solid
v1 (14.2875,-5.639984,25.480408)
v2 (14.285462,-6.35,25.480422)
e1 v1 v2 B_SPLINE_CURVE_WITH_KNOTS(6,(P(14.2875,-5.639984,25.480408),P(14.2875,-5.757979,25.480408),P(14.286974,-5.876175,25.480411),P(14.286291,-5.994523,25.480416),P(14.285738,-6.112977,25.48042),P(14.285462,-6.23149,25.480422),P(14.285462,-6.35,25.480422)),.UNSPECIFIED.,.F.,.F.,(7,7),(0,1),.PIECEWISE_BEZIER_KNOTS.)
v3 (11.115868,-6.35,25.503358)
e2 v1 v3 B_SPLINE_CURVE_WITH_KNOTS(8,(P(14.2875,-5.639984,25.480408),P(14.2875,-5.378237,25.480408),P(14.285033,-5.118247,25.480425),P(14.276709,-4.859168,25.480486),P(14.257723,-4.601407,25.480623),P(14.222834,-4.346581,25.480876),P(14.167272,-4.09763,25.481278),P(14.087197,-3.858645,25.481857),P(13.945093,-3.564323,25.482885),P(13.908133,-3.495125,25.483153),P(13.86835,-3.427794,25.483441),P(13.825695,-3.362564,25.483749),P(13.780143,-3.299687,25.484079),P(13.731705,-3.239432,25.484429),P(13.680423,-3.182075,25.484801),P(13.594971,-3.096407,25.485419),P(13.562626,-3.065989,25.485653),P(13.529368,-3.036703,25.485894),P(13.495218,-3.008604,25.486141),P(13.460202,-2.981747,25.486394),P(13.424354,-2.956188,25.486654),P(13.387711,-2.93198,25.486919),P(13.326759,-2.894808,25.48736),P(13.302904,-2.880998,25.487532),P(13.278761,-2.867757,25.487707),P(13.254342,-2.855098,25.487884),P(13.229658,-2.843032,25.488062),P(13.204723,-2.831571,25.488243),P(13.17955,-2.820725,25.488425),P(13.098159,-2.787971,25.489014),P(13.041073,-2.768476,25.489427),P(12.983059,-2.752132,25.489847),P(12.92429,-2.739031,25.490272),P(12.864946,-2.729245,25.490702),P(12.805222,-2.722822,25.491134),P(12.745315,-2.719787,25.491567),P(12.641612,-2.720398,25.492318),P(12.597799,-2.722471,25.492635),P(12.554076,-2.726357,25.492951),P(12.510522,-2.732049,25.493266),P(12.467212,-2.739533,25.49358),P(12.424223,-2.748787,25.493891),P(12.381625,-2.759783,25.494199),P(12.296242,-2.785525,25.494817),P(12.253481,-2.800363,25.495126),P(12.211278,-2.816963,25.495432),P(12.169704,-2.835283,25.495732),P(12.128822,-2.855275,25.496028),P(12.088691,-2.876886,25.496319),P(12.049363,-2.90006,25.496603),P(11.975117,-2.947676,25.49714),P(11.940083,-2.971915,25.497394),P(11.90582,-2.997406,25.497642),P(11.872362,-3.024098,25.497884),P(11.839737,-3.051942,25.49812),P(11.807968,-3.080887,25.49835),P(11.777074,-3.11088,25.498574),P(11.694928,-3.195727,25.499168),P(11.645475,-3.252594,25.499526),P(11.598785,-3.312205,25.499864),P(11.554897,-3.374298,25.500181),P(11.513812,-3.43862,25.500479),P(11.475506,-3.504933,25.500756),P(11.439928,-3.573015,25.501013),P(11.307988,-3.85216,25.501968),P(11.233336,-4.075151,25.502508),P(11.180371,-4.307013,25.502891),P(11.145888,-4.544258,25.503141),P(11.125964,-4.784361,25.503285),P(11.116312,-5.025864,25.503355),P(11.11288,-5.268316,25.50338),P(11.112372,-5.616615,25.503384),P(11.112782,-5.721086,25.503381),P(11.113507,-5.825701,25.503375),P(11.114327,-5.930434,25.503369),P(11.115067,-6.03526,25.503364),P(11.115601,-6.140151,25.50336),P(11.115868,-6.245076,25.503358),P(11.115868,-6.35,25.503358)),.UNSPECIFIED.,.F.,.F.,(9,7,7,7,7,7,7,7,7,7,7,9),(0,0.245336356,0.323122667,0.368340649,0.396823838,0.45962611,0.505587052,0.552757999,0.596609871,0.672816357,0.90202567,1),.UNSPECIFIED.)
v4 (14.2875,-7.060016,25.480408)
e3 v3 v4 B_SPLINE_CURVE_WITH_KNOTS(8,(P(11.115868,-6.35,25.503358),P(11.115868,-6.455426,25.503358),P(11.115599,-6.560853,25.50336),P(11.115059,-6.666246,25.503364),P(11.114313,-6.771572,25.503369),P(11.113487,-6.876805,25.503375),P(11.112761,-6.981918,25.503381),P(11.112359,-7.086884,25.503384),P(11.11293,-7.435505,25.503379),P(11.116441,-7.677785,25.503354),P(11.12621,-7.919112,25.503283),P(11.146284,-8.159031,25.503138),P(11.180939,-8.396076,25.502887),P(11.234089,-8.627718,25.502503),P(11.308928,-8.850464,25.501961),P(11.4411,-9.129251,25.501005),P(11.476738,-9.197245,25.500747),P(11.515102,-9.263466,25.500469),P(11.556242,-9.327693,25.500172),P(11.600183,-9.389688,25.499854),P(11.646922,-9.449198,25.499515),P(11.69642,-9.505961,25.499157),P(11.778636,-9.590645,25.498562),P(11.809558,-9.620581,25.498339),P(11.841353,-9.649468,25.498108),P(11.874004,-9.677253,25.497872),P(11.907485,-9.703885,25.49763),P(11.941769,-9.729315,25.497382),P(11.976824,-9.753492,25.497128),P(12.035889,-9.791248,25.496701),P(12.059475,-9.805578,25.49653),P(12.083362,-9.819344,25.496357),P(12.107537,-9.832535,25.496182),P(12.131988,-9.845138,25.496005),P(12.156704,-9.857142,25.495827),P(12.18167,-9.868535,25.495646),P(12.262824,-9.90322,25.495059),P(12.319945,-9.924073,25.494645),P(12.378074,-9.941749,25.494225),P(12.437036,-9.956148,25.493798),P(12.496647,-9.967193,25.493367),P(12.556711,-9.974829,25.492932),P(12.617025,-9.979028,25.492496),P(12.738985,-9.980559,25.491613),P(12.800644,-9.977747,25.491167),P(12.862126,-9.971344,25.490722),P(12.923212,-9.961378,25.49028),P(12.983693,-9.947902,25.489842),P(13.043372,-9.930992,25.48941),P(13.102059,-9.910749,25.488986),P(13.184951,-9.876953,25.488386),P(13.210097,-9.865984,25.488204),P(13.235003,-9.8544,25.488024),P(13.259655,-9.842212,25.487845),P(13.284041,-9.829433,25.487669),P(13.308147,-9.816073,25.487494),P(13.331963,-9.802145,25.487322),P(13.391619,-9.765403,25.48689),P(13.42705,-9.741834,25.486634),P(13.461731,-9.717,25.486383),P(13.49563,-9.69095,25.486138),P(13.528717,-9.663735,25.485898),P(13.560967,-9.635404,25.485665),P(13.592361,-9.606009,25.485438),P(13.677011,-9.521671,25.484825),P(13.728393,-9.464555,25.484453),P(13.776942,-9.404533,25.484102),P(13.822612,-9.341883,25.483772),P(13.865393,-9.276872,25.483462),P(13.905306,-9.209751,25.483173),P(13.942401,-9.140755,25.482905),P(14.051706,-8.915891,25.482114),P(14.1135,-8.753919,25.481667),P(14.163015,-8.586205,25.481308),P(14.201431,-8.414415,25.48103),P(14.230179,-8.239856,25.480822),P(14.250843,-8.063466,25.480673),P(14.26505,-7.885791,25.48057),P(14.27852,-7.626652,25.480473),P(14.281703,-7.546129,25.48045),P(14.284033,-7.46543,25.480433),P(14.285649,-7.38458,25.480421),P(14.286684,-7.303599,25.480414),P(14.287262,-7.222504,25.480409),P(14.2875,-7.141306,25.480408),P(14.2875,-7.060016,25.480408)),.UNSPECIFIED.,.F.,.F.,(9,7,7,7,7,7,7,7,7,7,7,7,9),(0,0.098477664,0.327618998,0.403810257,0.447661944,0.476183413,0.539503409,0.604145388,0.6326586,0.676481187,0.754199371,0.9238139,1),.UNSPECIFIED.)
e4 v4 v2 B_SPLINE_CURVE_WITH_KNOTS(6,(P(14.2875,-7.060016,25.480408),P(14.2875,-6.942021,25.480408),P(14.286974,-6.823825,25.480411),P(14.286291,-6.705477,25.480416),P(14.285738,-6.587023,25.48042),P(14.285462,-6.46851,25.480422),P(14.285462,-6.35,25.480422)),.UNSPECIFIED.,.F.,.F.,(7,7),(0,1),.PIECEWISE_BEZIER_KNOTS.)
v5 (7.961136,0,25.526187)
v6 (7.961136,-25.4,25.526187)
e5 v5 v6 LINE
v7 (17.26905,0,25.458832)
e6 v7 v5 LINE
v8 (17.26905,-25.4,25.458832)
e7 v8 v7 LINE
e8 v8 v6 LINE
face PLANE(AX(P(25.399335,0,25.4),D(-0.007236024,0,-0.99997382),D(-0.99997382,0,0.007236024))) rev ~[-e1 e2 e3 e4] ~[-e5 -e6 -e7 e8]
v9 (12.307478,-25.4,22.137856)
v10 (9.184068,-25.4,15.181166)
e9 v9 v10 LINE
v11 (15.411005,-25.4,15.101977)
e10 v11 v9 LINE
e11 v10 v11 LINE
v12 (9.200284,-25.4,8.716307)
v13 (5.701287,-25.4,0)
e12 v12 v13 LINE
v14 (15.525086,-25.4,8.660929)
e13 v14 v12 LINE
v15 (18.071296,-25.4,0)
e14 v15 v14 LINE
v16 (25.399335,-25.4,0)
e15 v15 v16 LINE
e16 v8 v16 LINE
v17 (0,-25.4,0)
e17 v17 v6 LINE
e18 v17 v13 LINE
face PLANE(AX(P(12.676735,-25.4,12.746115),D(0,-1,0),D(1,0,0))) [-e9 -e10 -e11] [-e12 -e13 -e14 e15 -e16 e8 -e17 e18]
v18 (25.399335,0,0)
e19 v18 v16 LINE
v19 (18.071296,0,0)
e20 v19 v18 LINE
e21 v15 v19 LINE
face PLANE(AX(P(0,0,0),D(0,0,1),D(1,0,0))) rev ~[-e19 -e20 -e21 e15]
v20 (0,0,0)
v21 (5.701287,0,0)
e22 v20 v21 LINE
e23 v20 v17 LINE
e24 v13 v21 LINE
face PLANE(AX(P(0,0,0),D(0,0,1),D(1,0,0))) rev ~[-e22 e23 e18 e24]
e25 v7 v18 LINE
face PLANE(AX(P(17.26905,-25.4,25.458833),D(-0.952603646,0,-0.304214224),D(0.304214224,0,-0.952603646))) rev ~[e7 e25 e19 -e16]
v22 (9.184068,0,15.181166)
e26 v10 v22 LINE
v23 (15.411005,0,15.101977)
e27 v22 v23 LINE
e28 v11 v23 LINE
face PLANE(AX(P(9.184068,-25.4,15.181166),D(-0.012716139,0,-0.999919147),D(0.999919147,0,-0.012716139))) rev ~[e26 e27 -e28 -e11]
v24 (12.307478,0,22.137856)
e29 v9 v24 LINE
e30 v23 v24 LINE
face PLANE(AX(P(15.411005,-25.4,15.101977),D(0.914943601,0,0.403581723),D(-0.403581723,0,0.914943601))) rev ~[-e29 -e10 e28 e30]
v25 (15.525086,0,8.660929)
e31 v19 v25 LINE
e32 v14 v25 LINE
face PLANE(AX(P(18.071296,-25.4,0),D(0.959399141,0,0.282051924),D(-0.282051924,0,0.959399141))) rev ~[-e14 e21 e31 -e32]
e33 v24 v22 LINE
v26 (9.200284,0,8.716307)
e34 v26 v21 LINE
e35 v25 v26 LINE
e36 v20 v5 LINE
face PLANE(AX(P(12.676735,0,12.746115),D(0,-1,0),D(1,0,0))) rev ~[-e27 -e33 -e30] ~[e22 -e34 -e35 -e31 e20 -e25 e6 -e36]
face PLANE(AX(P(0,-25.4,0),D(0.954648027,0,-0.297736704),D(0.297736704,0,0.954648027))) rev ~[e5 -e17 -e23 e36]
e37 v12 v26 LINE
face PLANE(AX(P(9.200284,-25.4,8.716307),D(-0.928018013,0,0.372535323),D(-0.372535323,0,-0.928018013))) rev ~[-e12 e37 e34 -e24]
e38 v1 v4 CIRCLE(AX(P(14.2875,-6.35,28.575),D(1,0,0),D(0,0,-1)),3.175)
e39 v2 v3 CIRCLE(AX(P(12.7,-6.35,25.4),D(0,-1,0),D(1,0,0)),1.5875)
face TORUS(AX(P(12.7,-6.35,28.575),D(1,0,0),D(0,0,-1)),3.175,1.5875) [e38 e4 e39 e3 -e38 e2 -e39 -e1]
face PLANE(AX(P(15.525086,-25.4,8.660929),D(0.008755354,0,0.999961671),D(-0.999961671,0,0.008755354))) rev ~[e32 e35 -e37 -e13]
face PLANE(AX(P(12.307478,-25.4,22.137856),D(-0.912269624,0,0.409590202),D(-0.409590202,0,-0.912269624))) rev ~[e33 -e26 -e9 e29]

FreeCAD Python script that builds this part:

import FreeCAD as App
import Part
import Sketcher
Q = App.Units.Quantity

doc = App.newDocument("Part")
params = doc.addObject("Spreadsheet::Sheet", "Params")
for row, (alias, value) in enumerate([
    ("sketch1_height", "1 in"),
    ("sketch1_length", "1 in"),
    ("pad1_length", "1 in"),
    ("sketch2_height", "1 in"),
    ("pocket1_length", "1 in"),
    ("sketch3_diameter", "0.125 in"),
    ("revolution_angle", "360 deg"),
], start=1):
    params.set(f"A{row}", alias)
    params.set(f"B{row}", "=" + value)
    params.setAlias(f"B{row}", alias)

body = doc.addObject("PartDesign::Body", "Body")

sketch1 = body.newObject("Sketcher::SketchObject", "Sketch")
sketch1.AttachmentSupport = (doc.getObject("XZ_Plane"), [""])
sketch1.MapMode = "FlatFace"
sketch1.addGeometry([
    Part.LineSegment(App.Vector(25.399335, 25.4, 0), App.Vector(0, 25.583795, 0)),
    Part.LineSegment(App.Vector(0, 25.583795, 0), App.Vector(0, 0, 0)),
    Part.LineSegment(App.Vector(0, 0, 0), App.Vector(25.399335, 0, 0)),
    Part.LineSegment(App.Vector(25.399335, 0, 0), App.Vector(25.399335, 25.4, 0)),
], False)
sketch1.addConstraint([
    Sketcher.Constraint("Coincident", 0, 2, 1, 1),
    Sketcher.Constraint("Coincident", 1, 2, 2, 1),
    Sketcher.Constraint("Coincident", 2, 2, 3, 1),
    Sketcher.Constraint("Coincident", 3, 2, 0, 1),
    Sketcher.Constraint("Vertical", 1),
    Sketcher.Constraint("Horizontal", 2),
    Sketcher.Constraint("Vertical", 3),
    Sketcher.Constraint("Coincident", 1, 2, -1, 1),
    Sketcher.Constraint("DistanceY", 3, 1, 3, 2, Q("1 in")),
    Sketcher.Constraint("Distance", 0, Q("1 in")),
    Sketcher.Constraint("DistanceX", 2, 1, 2, 2, 25.399335),
])
sketch1.setExpression("Constraints[8]", "Params.sketch1_height")
sketch1.setExpression("Constraints[9]", "Params.sketch1_length")
pad1 = body.newObject("PartDesign::Pad", "Pad")
pad1.Profile = sketch1
pad1.setExpression("Length", "Params.pad1_length")

sketch2 = body.newObject("Sketcher::SketchObject", "Sketch001")
sketch2.AttachmentSupport = (doc.getObject("XZ_Plane"), [""])
sketch2.MapMode = "FlatFace"
sketch2.AttachmentOffset = App.Placement(App.Vector(0, 0, 1 * 25.4), App.Rotation())
sketch2.addGeometry([
    Part.LineSegment(App.Vector(0, 0, 0), App.Vector(7.961136, 25.526187, 0)),
    Part.LineSegment(App.Vector(7.961136, 25.526187, 0), App.Vector(0, 25.583795, 0)),
    Part.LineSegment(App.Vector(0, 25.583795, 0), App.Vector(0, 0, 0)),
    Part.LineSegment(App.Vector(9.200284, 8.716307, 0), App.Vector(5.701287, 0, 0)),
    Part.LineSegment(App.Vector(5.701287, 0, 0), App.Vector(18.071296, 0, 0)),
    Part.LineSegment(App.Vector(18.071296, 0, 0), App.Vector(15.525086, 8.660929, 0)),
    Part.LineSegment(App.Vector(15.525086, 8.660929, 0), App.Vector(9.200284, 8.716307, 0)),
    Part.LineSegment(App.Vector(25.399335, 25.4, 0), App.Vector(17.26905, 25.458833, 0)),
    Part.LineSegment(App.Vector(17.26905, 25.458833, 0), App.Vector(25.399335, 0, 0)),
    Part.LineSegment(App.Vector(25.399335, 0, 0), App.Vector(25.399335, 25.4, 0)),
    Part.LineSegment(App.Vector(9.184068, 15.181166, 0), App.Vector(15.411005, 15.101977, 0)),
    Part.LineSegment(App.Vector(15.411005, 15.101977, 0), App.Vector(12.307478, 22.137856, 0)),
    Part.LineSegment(App.Vector(12.307478, 22.137856, 0), App.Vector(9.184068, 15.181166, 0)),
], False)
sketch2.addConstraint([
    Sketcher.Constraint("Coincident", 0, 2, 1, 1),
    Sketcher.Constraint("Coincident", 1, 2, 2, 1),
    Sketcher.Constraint("Coincident", 2, 2, 0, 1),
    Sketcher.Constraint("Coincident", 3, 2, 4, 1),
    Sketcher.Constraint("Coincident", 4, 2, 5, 1),
    Sketcher.Constraint("Coincident", 5, 2, 6, 1),
    Sketcher.Constraint("Coincident", 6, 2, 3, 1),
    Sketcher.Constraint("Coincident", 7, 2, 8, 1),
    Sketcher.Constraint("Coincident", 8, 2, 9, 1),
    Sketcher.Constraint("Coincident", 9, 2, 7, 1),
    Sketcher.Constraint("Coincident", 10, 2, 11, 1),
    Sketcher.Constraint("Coincident", 11, 2, 12, 1),
    Sketcher.Constraint("Coincident", 12, 2, 10, 1),
    Sketcher.Constraint("Vertical", 2),
    Sketcher.Constraint("Horizontal", 4),
    Sketcher.Constraint("Vertical", 9),
    Sketcher.Constraint("Coincident", 2, 2, -1, 1),
    Sketcher.Constraint("PointOnObject", 3, 2, -1),
    Sketcher.Constraint("PointOnObject", 8, 2, -1),
    Sketcher.Constraint("Parallel", 1, 7),
    Sketcher.Constraint("DistanceY", 9, 1, 9, 2, Q("1 in")),
    Sketcher.Constraint("DistanceX", 4, 1, 4, 2, 12.370009),
    Sketcher.Constraint("DistanceX", 3, 2, 5, 2, 9.823799),
    Sketcher.Constraint("DistanceX", 0, 2, 9, 2, 17.438199),
    Sketcher.Constraint("Distance", 3, 9.39239),
    Sketcher.Constraint("Distance", 5, 9.027451),
    Sketcher.Constraint("Distance", 10, 6.227441),
    Sketcher.Constraint("Distance", 11, 7.689959),
    Sketcher.Constraint("DistanceY", 2, 2, 2, 1, 25.583795),
    Sketcher.Constraint("DistanceX", -1, 1, 7, 2, 17.26905),
    Sketcher.Constraint("DistanceX", 3, 2, 0, 2, 2.259849),
    Sketcher.Constraint("DistanceY", 5, 2, 0, 2, 16.865258),
    Sketcher.Constraint("DistanceY", 5, 2, 6, 2, 0.055378),
    Sketcher.Constraint("DistanceX", 10, 2, 5, 2, 0.114081),
    Sketcher.Constraint("DistanceY", 5, 2, 10, 2, 6.441048),
    Sketcher.Constraint("DistanceY", 11, 2, 0, 2, 3.388331),
    Sketcher.Constraint("DistanceY", 10, 2, 12, 2, 0.079189),
    Sketcher.Constraint("Distance", 0, 26.738846),
])
sketch2.setExpression("Constraints[20]", "Params.sketch2_height")
pocket1 = body.newObject("PartDesign::Pocket", "Pocket")
pocket1.Profile = sketch2
pocket1.setExpression("Length", "Params.pocket1_length")

sketch3 = body.newObject("Sketcher::SketchObject", "Sketch002")
sketch3.AttachmentSupport = (doc.getObject("XZ_Plane"), [""])
sketch3.MapMode = "FlatFace"
sketch3.AttachmentOffset = App.Placement(App.Vector(0, 0, 0.25 * 25.4), App.Rotation())
sketch3.addGeometry(Part.Circle(App.Vector(12.7, 25.4, 0), App.Vector(0, 0, 1), 1.5875), False)
sketch3.addGeometry(Part.LineSegment(App.Vector(12.7, 28.575, 0), App.Vector(22.7, 28.575, 0)), True)
sketch3.addConstraint([
    Sketcher.Constraint("Horizontal", 1),
    Sketcher.Constraint("Vertical", 0, 3, 1, 1),
    Sketcher.Constraint("Diameter", 0, Q("0.125 in")),
    Sketcher.Constraint("DistanceY", -1, 1, 0, 3, Q("1 in")),
    Sketcher.Constraint("DistanceX", -1, 1, 0, 3, Q("0.5 in")),
    Sketcher.Constraint("DistanceY", -1, 1, 1, 1, Q("1.125 in")),
    Sketcher.Constraint("DistanceX", 1, 1, 1, 2, 10.0),
])
sketch3.setExpression("Constraints[2]", "Params.sketch3_diameter")
revolution = body.newObject("PartDesign::Revolution", "Revolution")
revolution.Profile = sketch3
revolution.ReferenceAxis = (sketch3, ["Axis0"])
revolution.setExpression("Angle", "Params.revolution_angle")

doc.recompute()
